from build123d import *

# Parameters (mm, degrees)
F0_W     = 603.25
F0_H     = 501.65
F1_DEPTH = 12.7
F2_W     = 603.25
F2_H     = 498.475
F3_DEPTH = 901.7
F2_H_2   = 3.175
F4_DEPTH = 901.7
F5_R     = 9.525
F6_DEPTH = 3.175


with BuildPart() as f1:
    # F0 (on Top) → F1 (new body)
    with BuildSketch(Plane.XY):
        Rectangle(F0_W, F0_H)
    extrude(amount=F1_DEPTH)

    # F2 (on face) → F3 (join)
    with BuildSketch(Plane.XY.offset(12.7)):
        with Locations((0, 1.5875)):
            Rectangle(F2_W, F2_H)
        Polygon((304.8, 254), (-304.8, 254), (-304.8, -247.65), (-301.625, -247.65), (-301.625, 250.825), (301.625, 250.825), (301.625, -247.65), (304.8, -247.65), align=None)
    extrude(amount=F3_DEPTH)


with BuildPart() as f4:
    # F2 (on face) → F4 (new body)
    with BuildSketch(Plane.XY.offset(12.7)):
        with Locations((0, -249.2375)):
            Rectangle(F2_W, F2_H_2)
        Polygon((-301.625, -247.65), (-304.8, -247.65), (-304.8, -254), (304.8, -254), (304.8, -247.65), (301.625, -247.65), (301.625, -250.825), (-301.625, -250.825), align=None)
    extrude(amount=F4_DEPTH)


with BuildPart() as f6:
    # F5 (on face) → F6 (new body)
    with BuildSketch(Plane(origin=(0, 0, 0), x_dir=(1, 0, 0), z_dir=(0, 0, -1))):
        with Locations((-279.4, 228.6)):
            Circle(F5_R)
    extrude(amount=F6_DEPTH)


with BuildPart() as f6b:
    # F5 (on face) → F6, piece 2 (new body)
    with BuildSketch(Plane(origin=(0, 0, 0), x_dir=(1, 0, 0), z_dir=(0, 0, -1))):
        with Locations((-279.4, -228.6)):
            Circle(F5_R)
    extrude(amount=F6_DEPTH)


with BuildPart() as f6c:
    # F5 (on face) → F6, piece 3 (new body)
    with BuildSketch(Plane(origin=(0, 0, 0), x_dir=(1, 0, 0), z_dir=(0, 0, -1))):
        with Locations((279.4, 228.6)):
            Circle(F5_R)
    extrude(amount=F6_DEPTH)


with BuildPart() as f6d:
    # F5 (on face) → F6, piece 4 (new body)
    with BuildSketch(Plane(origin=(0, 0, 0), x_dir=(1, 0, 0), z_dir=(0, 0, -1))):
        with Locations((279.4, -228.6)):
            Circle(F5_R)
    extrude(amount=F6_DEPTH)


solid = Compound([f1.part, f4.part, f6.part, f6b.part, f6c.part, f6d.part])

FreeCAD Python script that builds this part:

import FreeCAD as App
import Part
import Sketcher

V = App.Vector
Q = App.Units.Quantity

doc = App.newDocument("Part")
body = doc.addObject("PartDesign::Body", "Body")

# Sketch on XY plane
sketch1 = body.newObject("Sketcher::SketchObject", "Sketch")
sketch1.AttachmentSupport = (doc.getObject("XY_Plane"), [""])
sketch1.MapMode = "FlatFace"
sketch1.addGeometry(Part.LineSegment(V(-302, 251, 0), V(-302, -251, 0)), False)
sketch1.addGeometry(Part.LineSegment(V(-302, -251, 0), V(302, -251, 0)), False)
sketch1.addGeometry(Part.LineSegment(V(302, -251, 0), V(302, 251, 0)), False)
sketch1.addGeometry(Part.LineSegment(V(302, 251, 0), V(-302, 251, 0)), False)
sketch1.addConstraint(Sketcher.Constraint("Coincident", 0, 2, 1, 1))
sketch1.addConstraint(Sketcher.Constraint("Coincident", 1, 2, 2, 1))
sketch1.addConstraint(Sketcher.Constraint("Coincident", 2, 2, 3, 1))
sketch1.addConstraint(Sketcher.Constraint("Coincident", 3, 2, 0, 1))
sketch1.addConstraint(Sketcher.Constraint("Vertical", 0))
sketch1.addConstraint(Sketcher.Constraint("Horizontal", 1))
sketch1.addConstraint(Sketcher.Constraint("Vertical", 2))
sketch1.addConstraint(Sketcher.Constraint("Horizontal", 3))
sketch1.addConstraint(Sketcher.Constraint("Symmetric", 0, 2, 2, 2, -1, 1))
sketch1.addConstraint(Sketcher.Constraint("DistanceX", 1, 1, 1, 2, Q("23.75 in")))
sketch1.addConstraint(Sketcher.Constraint("DistanceY", 0, 2, 0, 1, Q("19.75 in")))
pad1 = body.newObject("PartDesign::Pad", "Pad")
pad1.Profile = sketch1
pad1.Length = Q("0.5 in")

# Sketch on XY plane
sketch2 = body.newObject("Sketcher::SketchObject", "Sketch001")
sketch2.AttachmentSupport = (doc.getObject("XY_Plane"), [""])
sketch2.MapMode = "FlatFace"
sketch2.AttachmentOffset = App.Placement(V(0, 0, 0.5 * 25.4), App.Rotation())
sketch2.addGeometry(Part.LineSegment(V(305, -248, 0), V(305, 254, 0)), False)
sketch2.addGeometry(Part.LineSegment(V(305, 254, 0), V(-305, 254, 0)), False)
sketch2.addGeometry(Part.LineSegment(V(-305, 254, 0), V(-305, -248, 0)), False)
sketch2.addGeometry(Part.LineSegment(V(-305, -248, 0), V(305, -248, 0)), False)
sketch2.addConstraint(Sketcher.Constraint("Coincident", 0, 2, 1, 1))
sketch2.addConstraint(Sketcher.Constraint("Coincident", 1, 2, 2, 1))
sketch2.addConstraint(Sketcher.Constraint("Coincident", 2, 2, 3, 1))
sketch2.addConstraint(Sketcher.Constraint("Coincident", 3, 2, 0, 1))
sketch2.addConstraint(Sketcher.Constraint("Vertical", 0))
sketch2.addConstraint(Sketcher.Constraint("Horizontal", 1))
sketch2.addConstraint(Sketcher.Constraint("Vertical", 2))
sketch2.addConstraint(Sketcher.Constraint("Horizontal", 3))
sketch2.addConstraint(Sketcher.Constraint("DistanceX", 1, 2, 1, 1, Q("24 in")))
sketch2.addConstraint(Sketcher.Constraint("DistanceX", -1, 1, 0, 2, Q("12 in")))
sketch2.addConstraint(Sketcher.Constraint("DistanceY", -1, 1, 0, 2, Q("10 in")))
sketch2.addConstraint(Sketcher.Constraint("DistanceY", 0, 1, 0, 2, Q("19.75 in")))
pad2 = body.newObject("PartDesign::Pad", "Pad001")
pad2.Profile = sketch2
pad2.Length = Q("35.5 in")
body2 = doc.addObject("PartDesign::Body", "Body001")

# Sketch on XY plane
sketch3 = body2.newObject("Sketcher::SketchObject", "Sketch002")
sketch3.AttachmentSupport = (doc.getObject("XY_Plane001"), [""])
sketch3.MapMode = "FlatFace"
sketch3.AttachmentOffset = App.Placement(V(0, 0, 0.5 * 25.4), App.Rotation())
sketch3.addGeometry(Part.LineSegment(V(-305, -248, 0), V(-305, -254, 0)), False)
sketch3.addGeometry(Part.LineSegment(V(-305, -254, 0), V(305, -254, 0)), False)
sketch3.addGeometry(Part.LineSegment(V(305, -254, 0), V(305, -248, 0)), False)
sketch3.addGeometry(Part.LineSegment(V(305, -248, 0), V(-305, -248, 0)), False)
sketch3.addConstraint(Sketcher.Constraint("Coincident", 0, 2, 1, 1))
sketch3.addConstraint(Sketcher.Constraint("Coincident", 1, 2, 2, 1))
sketch3.addConstraint(Sketcher.Constraint("Coincident", 2, 2, 3, 1))
sketch3.addConstraint(Sketcher.Constraint("Coincident", 3, 2, 0, 1))
sketch3.addConstraint(Sketcher.Constraint("Vertical", 0))
sketch3.addConstraint(Sketcher.Constraint("Horizontal", 1))
sketch3.addConstraint(Sketcher.Constraint("Vertical", 2))
sketch3.addConstraint(Sketcher.Constraint("Horizontal", 3))
sketch3.addConstraint(Sketcher.Constraint("DistanceX", 1, 1, 1, 2, Q("24 in")))
sketch3.addConstraint(Sketcher.Constraint("DistanceX", 0, 2, -1, 1, Q("12 in")))
sketch3.addConstraint(Sketcher.Constraint("DistanceY", 0, 2, -1, 1, Q("10 in")))
sketch3.addConstraint(Sketcher.Constraint("DistanceY", 0, 2, 0, 1, Q("0.25 in")))
pad3 = body2.newObject("PartDesign::Pad", "Pad002")
pad3.Profile = sketch3
pad3.Length = Q("35.5 in")
body3 = doc.addObject("PartDesign::Body", "Body002")

# Sketch on XY plane
sketch4 = body3.newObject("Sketcher::SketchObject", "Sketch003")
sketch4.AttachmentSupport = (doc.getObject("XY_Plane002"), [""])
sketch4.MapMode = "FlatFace"
sketch4.addGeometry(Part.Circle(V(-279, -229, 0), V(0, 0, 1), 10), False)
sketch4.addConstraint(Sketcher.Constraint("Diameter", 0, Q("0.75 in")))
sketch4.addConstraint(Sketcher.Constraint("DistanceX", 0, 3, -1, 1, Q("11 in")))
sketch4.addConstraint(Sketcher.Constraint("DistanceY", 0, 3, -1, 1, Q("9 in")))
pad4 = body3.newObject("PartDesign::Pad", "Pad003")
pad4.Profile = sketch4
pad4.Length = Q("0.125 in")
pad4.Reversed = True
body4 = doc.addObject("PartDesign::Body", "Body003")

# Sketch on XY plane
sketch5 = body4.newObject("Sketcher::SketchObject", "Sketch004")
sketch5.AttachmentSupport = (doc.getObject("XY_Plane003"), [""])
sketch5.MapMode = "FlatFace"
sketch5.addGeometry(Part.Circle(V(-279, 229, 0), V(0, 0, 1), 10), False)
sketch5.addConstraint(Sketcher.Constraint("Diameter", 0, Q("0.75 in")))
sketch5.addConstraint(Sketcher.Constraint("DistanceX", 0, 3, -1, 1, Q("11 in")))
sketch5.addConstraint(Sketcher.Constraint("DistanceY", -1, 1, 0, 3, Q("9 in")))
pad5 = body4.newObject("PartDesign::Pad", "Pad004")
pad5.Profile = sketch5
pad5.Length = Q("0.125 in")
pad5.Reversed = True
body5 = doc.addObject("PartDesign::Body", "Body004")

# Sketch on XY plane
sketch6 = body5.newObject("Sketcher::SketchObject", "Sketch005")
sketch6.AttachmentSupport = (doc.getObject("XY_Plane004"), [""])
sketch6.MapMode = "FlatFace"
sketch6.addGeometry(Part.Circle(V(279, -229, 0), V(0, 0, 1), 10), False)
sketch6.addConstraint(Sketcher.Constraint("Diameter", 0, Q("0.75 in")))
sketch6.addConstraint(Sketcher.Constraint("DistanceX", -1, 1, 0, 3, Q("11 in")))
sketch6.addConstraint(Sketcher.Constraint("DistanceY", 0, 3, -1, 1, Q("9 in")))
pad6 = body5.newObject("PartDesign::Pad", "Pad005")
pad6.Profile = sketch6
pad6.Length = Q("0.125 in")
pad6.Reversed = True
body6 = doc.addObject("PartDesign::Body", "Body005")

# Sketch on XY plane
sketch7 = body6.newObject("Sketcher::SketchObject", "Sketch006")
sketch7.AttachmentSupport = (doc.getObject("XY_Plane005"), [""])
sketch7.MapMode = "FlatFace"
sketch7.addGeometry(Part.Circle(V(279, 229, 0), V(0, 0, 1), 10), False)
sketch7.addConstraint(Sketcher.Constraint("Diameter", 0, Q("0.75 in")))
sketch7.addConstraint(Sketcher.Constraint("DistanceX", -1, 1, 0, 3, Q("11 in")))
sketch7.addConstraint(Sketcher.Constraint("DistanceY", -1, 1, 0, 3, Q("9 in")))
pad7 = body6.newObject("PartDesign::Pad", "Pad006")
pad7.Profile = sketch7
pad7.Length = Q("0.125 in")
pad7.Reversed = True

doc.recompute()
